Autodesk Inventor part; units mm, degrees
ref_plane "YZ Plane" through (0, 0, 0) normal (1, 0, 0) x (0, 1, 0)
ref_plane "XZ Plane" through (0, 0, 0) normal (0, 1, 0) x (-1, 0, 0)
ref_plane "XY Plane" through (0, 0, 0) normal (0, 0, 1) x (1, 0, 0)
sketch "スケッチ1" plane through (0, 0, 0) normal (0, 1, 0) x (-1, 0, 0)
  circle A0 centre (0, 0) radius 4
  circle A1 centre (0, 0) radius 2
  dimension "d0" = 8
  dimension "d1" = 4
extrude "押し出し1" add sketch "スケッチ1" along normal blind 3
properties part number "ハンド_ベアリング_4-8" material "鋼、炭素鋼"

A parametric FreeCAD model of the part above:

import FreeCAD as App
import Part
import Sketcher

V = App.Vector

doc = App.newDocument("Part")
body = doc.addObject("PartDesign::Body", "Body")

# Sketch on XZ plane
sketch1 = body.newObject("Sketcher::SketchObject", "Sketch")
sketch1.AttachmentSupport = (doc.getObject("XZ_Plane"), [""])
sketch1.MapMode = "FlatFace"
sketch1.addGeometry([
    Part.Circle(V(0, 0, 0), V(0, 0, 1), 4),
    Part.Circle(V(0, 0, 0), V(0, 0, 1), 2),
], False)
sketch1.addConstraint([
    Sketcher.Constraint("Coincident", 0, 3, -1, 1),
    Sketcher.Constraint("Coincident", 1, 3, -1, 1),
    Sketcher.Constraint("Diameter", 0, 8.0),
    Sketcher.Constraint("Diameter", 1, 4.0),
])
pad1 = body.newObject("PartDesign::Pad", "Pad")
pad1.Profile = sketch1
pad1.Length = 3
pad1.Reversed = True

doc.recompute()
